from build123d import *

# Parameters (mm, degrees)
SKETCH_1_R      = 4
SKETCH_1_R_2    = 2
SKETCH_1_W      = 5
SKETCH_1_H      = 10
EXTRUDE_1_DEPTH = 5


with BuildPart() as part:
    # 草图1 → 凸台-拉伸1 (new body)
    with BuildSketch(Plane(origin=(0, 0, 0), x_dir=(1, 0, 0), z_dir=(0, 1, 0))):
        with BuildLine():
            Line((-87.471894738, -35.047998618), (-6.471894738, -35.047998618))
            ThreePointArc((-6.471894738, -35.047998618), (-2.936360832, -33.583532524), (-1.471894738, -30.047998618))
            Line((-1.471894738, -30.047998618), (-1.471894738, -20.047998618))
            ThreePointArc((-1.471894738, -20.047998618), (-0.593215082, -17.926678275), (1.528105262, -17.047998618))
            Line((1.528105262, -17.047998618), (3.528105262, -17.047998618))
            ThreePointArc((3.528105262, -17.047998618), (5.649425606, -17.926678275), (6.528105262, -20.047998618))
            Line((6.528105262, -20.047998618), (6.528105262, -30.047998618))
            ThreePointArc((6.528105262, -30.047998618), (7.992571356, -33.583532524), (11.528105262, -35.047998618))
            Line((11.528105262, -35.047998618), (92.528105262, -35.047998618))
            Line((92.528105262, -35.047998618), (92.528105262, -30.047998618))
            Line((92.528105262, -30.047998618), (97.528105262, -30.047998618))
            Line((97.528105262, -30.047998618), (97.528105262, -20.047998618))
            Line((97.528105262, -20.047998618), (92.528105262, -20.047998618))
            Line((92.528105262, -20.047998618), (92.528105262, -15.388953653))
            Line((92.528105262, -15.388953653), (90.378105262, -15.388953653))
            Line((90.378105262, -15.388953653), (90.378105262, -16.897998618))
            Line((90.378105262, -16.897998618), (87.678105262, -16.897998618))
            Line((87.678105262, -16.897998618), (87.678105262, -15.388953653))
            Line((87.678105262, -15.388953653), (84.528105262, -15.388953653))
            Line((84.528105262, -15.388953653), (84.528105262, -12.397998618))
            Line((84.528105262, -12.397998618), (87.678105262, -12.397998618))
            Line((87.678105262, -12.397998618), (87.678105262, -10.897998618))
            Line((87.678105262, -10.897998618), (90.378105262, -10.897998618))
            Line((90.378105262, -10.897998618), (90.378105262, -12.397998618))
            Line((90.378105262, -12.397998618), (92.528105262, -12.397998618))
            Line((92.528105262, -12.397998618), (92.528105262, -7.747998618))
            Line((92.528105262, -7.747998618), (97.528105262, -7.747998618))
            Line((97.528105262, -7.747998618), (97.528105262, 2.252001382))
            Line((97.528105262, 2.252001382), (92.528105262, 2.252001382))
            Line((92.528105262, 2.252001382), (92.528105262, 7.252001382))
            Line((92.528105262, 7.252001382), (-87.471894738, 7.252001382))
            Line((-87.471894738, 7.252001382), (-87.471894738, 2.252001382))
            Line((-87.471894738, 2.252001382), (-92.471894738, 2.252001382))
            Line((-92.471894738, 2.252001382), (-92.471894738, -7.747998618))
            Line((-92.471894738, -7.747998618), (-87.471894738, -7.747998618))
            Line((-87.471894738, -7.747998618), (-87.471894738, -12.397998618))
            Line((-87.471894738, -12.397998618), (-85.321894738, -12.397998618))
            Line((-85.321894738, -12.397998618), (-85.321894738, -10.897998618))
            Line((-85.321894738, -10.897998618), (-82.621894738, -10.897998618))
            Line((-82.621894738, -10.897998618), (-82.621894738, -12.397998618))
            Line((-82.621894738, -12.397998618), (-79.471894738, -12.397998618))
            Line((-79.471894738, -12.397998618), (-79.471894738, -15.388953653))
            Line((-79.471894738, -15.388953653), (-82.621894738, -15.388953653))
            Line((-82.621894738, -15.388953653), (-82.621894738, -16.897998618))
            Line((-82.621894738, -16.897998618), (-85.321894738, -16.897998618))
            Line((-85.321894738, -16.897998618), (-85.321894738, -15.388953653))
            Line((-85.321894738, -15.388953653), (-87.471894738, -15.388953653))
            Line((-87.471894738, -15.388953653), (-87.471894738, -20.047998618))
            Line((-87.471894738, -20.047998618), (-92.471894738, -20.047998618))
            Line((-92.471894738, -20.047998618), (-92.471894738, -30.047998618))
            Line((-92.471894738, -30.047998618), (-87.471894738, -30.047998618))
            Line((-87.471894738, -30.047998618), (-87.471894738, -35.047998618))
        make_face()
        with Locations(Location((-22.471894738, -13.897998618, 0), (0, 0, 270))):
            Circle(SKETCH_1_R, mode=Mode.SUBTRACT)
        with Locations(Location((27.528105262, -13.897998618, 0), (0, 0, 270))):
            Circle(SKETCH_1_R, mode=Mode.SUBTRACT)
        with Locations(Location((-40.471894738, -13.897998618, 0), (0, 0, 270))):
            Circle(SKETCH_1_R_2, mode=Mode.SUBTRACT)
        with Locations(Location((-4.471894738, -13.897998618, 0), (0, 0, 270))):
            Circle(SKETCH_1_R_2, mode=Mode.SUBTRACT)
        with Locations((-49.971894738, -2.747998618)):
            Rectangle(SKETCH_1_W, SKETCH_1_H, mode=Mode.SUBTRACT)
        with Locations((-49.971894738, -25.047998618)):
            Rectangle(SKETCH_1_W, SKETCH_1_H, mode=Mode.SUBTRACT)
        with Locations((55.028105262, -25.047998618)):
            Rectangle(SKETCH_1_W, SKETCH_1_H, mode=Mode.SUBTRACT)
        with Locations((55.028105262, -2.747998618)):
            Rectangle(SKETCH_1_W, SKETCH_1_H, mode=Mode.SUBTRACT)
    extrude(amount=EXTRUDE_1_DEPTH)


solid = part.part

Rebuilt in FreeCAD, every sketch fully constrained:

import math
import FreeCAD as App
import Part
import Sketcher

V = App.Vector
Q = App.Units.Quantity


def add_polygon(sketch, points):
    """Adds a closed chain of lines whose ends are joined by coincident constraints."""
    first, n = sketch.GeometryCount, len(points)
    for a, b in zip(points, points[1:] + points[:1]):
        sketch.addGeometry(Part.LineSegment(App.Vector(*a, 0), App.Vector(*b, 0)), False)
    for i in range(n):
        sketch.addConstraint(Sketcher.Constraint("Coincident", first + i, 2, first + (i + 1) % n, 1))

doc = App.newDocument("Part")
params = doc.addObject("Spreadsheet::Sheet", "Params")
for row, (alias, value) in enumerate([
    ("sketch1_diameter", "4 mm"),
    ("sketch1_diameter2", "8 mm"),
    ("sketch1_radius", "5 mm"),
    ("sketch1_radius2", "3 mm"),
    ("sketch1_width", "81 mm"),
    ("pad1_length", "5 mm"),
], start=1):
    params.set(f"A{row}", alias)
    params.set(f"B{row}", "=" + value)
    params.setAlias(f"B{row}", alias)

body = doc.addObject("PartDesign::Body", "Body")

# Sketch on XZ plane
sketch1 = body.newObject("Sketcher::SketchObject", "Sketch")
sketch1.AttachmentSupport = (doc.getObject("XZ_Plane"), [""])
sketch1.MapMode = "FlatFace"
sketch1.addGeometry(Part.LineSegment(V(-87.5, 35, 0), V(-6.5, 35, 0)), False)  # 0
sketch1.addGeometry(Part.ArcOfCircle(Part.Circle(V(-6.5, 30, 0), V(0, 0, 1), 5), math.radians(0), math.radians(90)), False)  # 1
sketch1.addGeometry(Part.LineSegment(V(-1.5, 30, 0), V(-1.5, 20, 0)), False)  # 2
sketch1.addGeometry(Part.ArcOfCircle(Part.Circle(V(1.5, 20, 0), V(0, 0, 1), 3), math.radians(180), math.radians(270)), False)  # 3
sketch1.addGeometry(Part.LineSegment(V(1.5, 17, 0), V(3.5, 17, 0)), False)  # 4
sketch1.addGeometry(Part.ArcOfCircle(Part.Circle(V(3.5, 20, 0), V(0, 0, 1), 3), math.radians(-90), math.radians(0)), False)  # 5
sketch1.addGeometry(Part.LineSegment(V(6.5, 20, 0), V(6.5, 30, 0)), False)  # 6
sketch1.addGeometry(Part.ArcOfCircle(Part.Circle(V(11.5, 30, 0), V(0, 0, 1), 5), math.radians(90), math.radians(180)), False)  # 7
sketch1.addGeometry(Part.LineSegment(V(11.5, 35, 0), V(92.5, 35, 0)), False)  # 8
sketch1.addGeometry(Part.LineSegment(V(92.5, 35, 0), V(92.5, 30, 0)), False)  # 9
sketch1.addGeometry(Part.LineSegment(V(92.5, 30, 0), V(97.5, 30, 0)), False)  # 10
sketch1.addGeometry(Part.LineSegment(V(97.5, 30, 0), V(97.5, 20, 0)), False)  # 11
sketch1.addGeometry(Part.LineSegment(V(97.5, 20, 0), V(92.5, 20, 0)), False)  # 12
sketch1.addGeometry(Part.LineSegment(V(92.5, 20, 0), V(92.5, 15.4, 0)), False)  # 13
sketch1.addGeometry(Part.LineSegment(V(92.5, 15.4, 0), V(90.4, 15.4, 0)), False)  # 14
sketch1.addGeometry(Part.LineSegment(V(90.4, 15.4, 0), V(90.4, 16.9, 0)), False)  # 15
sketch1.addGeometry(Part.LineSegment(V(90.4, 16.9, 0), V(87.7, 16.9, 0)), False)  # 16
sketch1.addGeometry(Part.LineSegment(V(87.7, 16.9, 0), V(87.7, 15.4, 0)), False)  # 17
sketch1.addGeometry(Part.LineSegment(V(87.7, 15.4, 0), V(84.5, 15.4, 0)), False)  # 18
sketch1.addGeometry(Part.LineSegment(V(84.5, 15.4, 0), V(84.5, 12.4, 0)), False)  # 19
sketch1.addGeometry(Part.LineSegment(V(84.5, 12.4, 0), V(87.7, 12.4, 0)), False)  # 20
sketch1.addGeometry(Part.LineSegment(V(87.7, 12.4, 0), V(87.7, 10.9, 0)), False)  # 21
sketch1.addGeometry(Part.LineSegment(V(87.7, 10.9, 0), V(90.4, 10.9, 0)), False)  # 22
sketch1.addGeometry(Part.LineSegment(V(90.4, 10.9, 0), V(90.4, 12.4, 0)), False)  # 23
sketch1.addGeometry(Part.LineSegment(V(90.4, 12.4, 0), V(92.5, 12.4, 0)), False)  # 24
sketch1.addGeometry(Part.LineSegment(V(92.5, 12.4, 0), V(92.5, 7.7, 0)), False)  # 25
sketch1.addGeometry(Part.LineSegment(V(92.5, 7.7, 0), V(97.5, 7.7, 0)), False)  # 26
sketch1.addGeometry(Part.LineSegment(V(97.5, 7.7, 0), V(97.5, -2.3, 0)), False)  # 27
sketch1.addGeometry(Part.LineSegment(V(97.5, -2.3, 0), V(92.5, -2.3, 0)), False)  # 28
sketch1.addGeometry(Part.LineSegment(V(92.5, -2.3, 0), V(92.5, -7.3, 0)), False)  # 29
sketch1.addGeometry(Part.LineSegment(V(92.5, -7.3, 0), V(-87.5, -7.3, 0)), False)  # 30
sketch1.addGeometry(Part.LineSegment(V(-87.5, -7.3, 0), V(-87.5, -2.3, 0)), False)  # 31
sketch1.addGeometry(Part.LineSegment(V(-87.5, -2.3, 0), V(-92.5, -2.3, 0)), False)  # 32
sketch1.addGeometry(Part.LineSegment(V(-92.5, -2.3, 0), V(-92.5, 7.7, 0)), False)  # 33
sketch1.addGeometry(Part.LineSegment(V(-92.5, 7.7, 0), V(-87.5, 7.7, 0)), False)  # 34
sketch1.addGeometry(Part.LineSegment(V(-87.5, 7.7, 0), V(-87.5, 12.4, 0)), False)  # 35
sketch1.addGeometry(Part.LineSegment(V(-87.5, 12.4, 0), V(-85.3, 12.4, 0)), False)  # 36
sketch1.addGeometry(Part.LineSegment(V(-85.3, 12.4, 0), V(-85.3, 10.9, 0)), False)  # 37
sketch1.addGeometry(Part.LineSegment(V(-85.3, 10.9, 0), V(-82.6, 10.9, 0)), False)  # 38
sketch1.addGeometry(Part.LineSegment(V(-82.6, 10.9, 0), V(-82.6, 12.4, 0)), False)  # 39
sketch1.addGeometry(Part.LineSegment(V(-82.6, 12.4, 0), V(-79.5, 12.4, 0)), False)  # 40
sketch1.addGeometry(Part.LineSegment(V(-79.5, 12.4, 0), V(-79.5, 15.4, 0)), False)  # 41
sketch1.addGeometry(Part.LineSegment(V(-79.5, 15.4, 0), V(-82.6, 15.4, 0)), False)  # 42
sketch1.addGeometry(Part.LineSegment(V(-82.6, 15.4, 0), V(-82.6, 16.9, 0)), False)  # 43
sketch1.addGeometry(Part.LineSegment(V(-82.6, 16.9, 0), V(-85.3, 16.9, 0)), False)  # 44
sketch1.addGeometry(Part.LineSegment(V(-85.3, 16.9, 0), V(-85.3, 15.4, 0)), False)  # 45
sketch1.addGeometry(Part.LineSegment(V(-85.3, 15.4, 0), V(-87.5, 15.4, 0)), False)  # 46
sketch1.addGeometry(Part.LineSegment(V(-87.5, 15.4, 0), V(-87.5, 20, 0)), False)  # 47
sketch1.addGeometry(Part.LineSegment(V(-87.5, 20, 0), V(-92.5, 20, 0)), False)  # 48
sketch1.addGeometry(Part.LineSegment(V(-92.5, 20, 0), V(-92.5, 30, 0)), False)  # 49
sketch1.addGeometry(Part.LineSegment(V(-92.5, 30, 0), V(-87.5, 30, 0)), False)  # 50
sketch1.addGeometry(Part.LineSegment(V(-87.5, 30, 0), V(-87.5, 35, 0)), False)  # 51
add_polygon(sketch1, [(-47.5, 30), (-52.5, 30), (-52.5, 20), (-47.5, 20)])  # lines 52-55
add_polygon(sketch1, [(57.5, 30), (52.5, 30), (52.5, 20), (57.5, 20)])  # lines 56-59
sketch1.addGeometry(Part.Circle(V(-40.5, 13.9, 0), V(0, 0, 1), 2), False)  # 60
sketch1.addGeometry(Part.Circle(V(-22.5, 13.9, 0), V(0, 0, 1), 4), False)  # 61
sketch1.addGeometry(Part.Circle(V(-4.5, 13.9, 0), V(0, 0, 1), 2), False)  # 62
add_polygon(sketch1, [(-47.5, 7.7), (-52.5, 7.7), (-52.5, -2.3), (-47.5, -2.3)])  # lines 63-66
sketch1.addGeometry(Part.Circle(V(27.5, 13.9, 0), V(0, 0, 1), 4), False)  # 67
add_polygon(sketch1, [(57.5, 7.7), (52.5, 7.7), (52.5, -2.3), (57.5, -2.3)])  # lines 68-71
sketch1.addConstraint(Sketcher.Constraint("Tangent", 0, 2, 1, 2))
sketch1.addConstraint(Sketcher.Constraint("Tangent", 1, 1, 2, 1))
sketch1.addConstraint(Sketcher.Constraint("Tangent", 2, 2, 3, 1))
sketch1.addConstraint(Sketcher.Constraint("Tangent", 3, 2, 4, 1))
sketch1.addConstraint(Sketcher.Constraint("Tangent", 4, 2, 5, 1))
sketch1.addConstraint(Sketcher.Constraint("Tangent", 5, 2, 6, 1))
sketch1.addConstraint(Sketcher.Constraint("Tangent", 6, 2, 7, 2))
sketch1.addConstraint(Sketcher.Constraint("Tangent", 7, 1, 8, 1))
sketch1.addConstraint(Sketcher.Constraint("Coincident", 8, 2, 9, 1))
sketch1.addConstraint(Sketcher.Constraint("Coincident", 9, 2, 10, 1))
sketch1.addConstraint(Sketcher.Constraint("Coincident", 10, 2, 11, 1))
sketch1.addConstraint(Sketcher.Constraint("Coincident", 11, 2, 12, 1))
sketch1.addConstraint(Sketcher.Constraint("Coincident", 12, 2, 13, 1))
sketch1.addConstraint(Sketcher.Constraint("Coincident", 13, 2, 14, 1))
sketch1.addConstraint(Sketcher.Constraint("Coincident", 14, 2, 15, 1))
sketch1.addConstraint(Sketcher.Constraint("Coincident", 15, 2, 16, 1))
sketch1.addConstraint(Sketcher.Constraint("Coincident", 16, 2, 17, 1))
sketch1.addConstraint(Sketcher.Constraint("Coincident", 17, 2, 18, 1))
sketch1.addConstraint(Sketcher.Constraint("Coincident", 18, 2, 19, 1))
sketch1.addConstraint(Sketcher.Constraint("Coincident", 19, 2, 20, 1))
sketch1.addConstraint(Sketcher.Constraint("Coincident", 20, 2, 21, 1))
sketch1.addConstraint(Sketcher.Constraint("Coincident", 21, 2, 22, 1))
sketch1.addConstraint(Sketcher.Constraint("Coincident", 22, 2, 23, 1))
sketch1.addConstraint(Sketcher.Constraint("Coincident", 23, 2, 24, 1))
sketch1.addConstraint(Sketcher.Constraint("Coincident", 24, 2, 25, 1))
sketch1.addConstraint(Sketcher.Constraint("Coincident", 25, 2, 26, 1))
sketch1.addConstraint(Sketcher.Constraint("Coincident", 26, 2, 27, 1))
sketch1.addConstraint(Sketcher.Constraint("Coincident", 27, 2, 28, 1))
sketch1.addConstraint(Sketcher.Constraint("Coincident", 28, 2, 29, 1))
sketch1.addConstraint(Sketcher.Constraint("Coincident", 29, 2, 30, 1))
sketch1.addConstraint(Sketcher.Constraint("Coincident", 30, 2, 31, 1))
sketch1.addConstraint(Sketcher.Constraint("Coincident", 31, 2, 32, 1))
sketch1.addConstraint(Sketcher.Constraint("Coincident", 32, 2, 33, 1))
sketch1.addConstraint(Sketcher.Constraint("Coincident", 33, 2, 34, 1))
sketch1.addConstraint(Sketcher.Constraint("Coincident", 34, 2, 35, 1))
sketch1.addConstraint(Sketcher.Constraint("Coincident", 35, 2, 36, 1))
sketch1.addConstraint(Sketcher.Constraint("Coincident", 36, 2, 37, 1))
sketch1.addConstraint(Sketcher.Constraint("Coincident", 37, 2, 38, 1))
sketch1.addConstraint(Sketcher.Constraint("Coincident", 38, 2, 39, 1))
sketch1.addConstraint(Sketcher.Constraint("Coincident", 39, 2, 40, 1))
sketch1.addConstraint(Sketcher.Constraint("Coincident", 40, 2, 41, 1))
sketch1.addConstraint(Sketcher.Constraint("Coincident", 41, 2, 42, 1))
sketch1.addConstraint(Sketcher.Constraint("Coincident", 42, 2, 43, 1))
sketch1.addConstraint(Sketcher.Constraint("Coincident", 43, 2, 44, 1))
sketch1.addConstraint(Sketcher.Constraint("Coincident", 44, 2, 45, 1))
sketch1.addConstraint(Sketcher.Constraint("Coincident", 45, 2, 46, 1))
sketch1.addConstraint(Sketcher.Constraint("Coincident", 46, 2, 47, 1))
sketch1.addConstraint(Sketcher.Constraint("Coincident", 47, 2, 48, 1))
sketch1.addConstraint(Sketcher.Constraint("Coincident", 48, 2, 49, 1))
sketch1.addConstraint(Sketcher.Constraint("Coincident", 49, 2, 50, 1))
sketch1.addConstraint(Sketcher.Constraint("Coincident", 50, 2, 51, 1))
sketch1.addConstraint(Sketcher.Constraint("Coincident", 51, 2, 0, 1))
sketch1.addConstraint(Sketcher.Constraint("Horizontal", 0))
sketch1.addConstraint(Sketcher.Constraint("Vertical", 2))
sketch1.addConstraint(Sketcher.Constraint("Horizontal", 4))
sketch1.addConstraint(Sketcher.Constraint("Vertical", 6))
sketch1.addConstraint(Sketcher.Constraint("Horizontal", 8))
sketch1.addConstraint(Sketcher.Constraint("Vertical", 9))
sketch1.addConstraint(Sketcher.Constraint("Horizontal", 10))
sketch1.addConstraint(Sketcher.Constraint("Vertical", 11))
sketch1.addConstraint(Sketcher.Constraint("Horizontal", 12))
sketch1.addConstraint(Sketcher.Constraint("Vertical", 13))
sketch1.addConstraint(Sketcher.Constraint("Horizontal", 14))
sketch1.addConstraint(Sketcher.Constraint("Vertical", 15))
sketch1.addConstraint(Sketcher.Constraint("Horizontal", 16))
sketch1.addConstraint(Sketcher.Constraint("Vertical", 17))
sketch1.addConstraint(Sketcher.Constraint("Horizontal", 18))
sketch1.addConstraint(Sketcher.Constraint("Vertical", 19))
sketch1.addConstraint(Sketcher.Constraint("Horizontal", 20))
sketch1.addConstraint(Sketcher.Constraint("Vertical", 21))
sketch1.addConstraint(Sketcher.Constraint("Horizontal", 22))
sketch1.addConstraint(Sketcher.Constraint("Vertical", 23))
sketch1.addConstraint(Sketcher.Constraint("Horizontal", 24))
sketch1.addConstraint(Sketcher.Constraint("Vertical", 25))
sketch1.addConstraint(Sketcher.Constraint("Horizontal", 26))
sketch1.addConstraint(Sketcher.Constraint("Vertical", 27))
sketch1.addConstraint(Sketcher.Constraint("Horizontal", 28))
sketch1.addConstraint(Sketcher.Constraint("Vertical", 29))
sketch1.addConstraint(Sketcher.Constraint("Horizontal", 30))
sketch1.addConstraint(Sketcher.Constraint("Vertical", 31))
sketch1.addConstraint(Sketcher.Constraint("Horizontal", 32))
sketch1.addConstraint(Sketcher.Constraint("Vertical", 33))
sketch1.addConstraint(Sketcher.Constraint("Horizontal", 34))
sketch1.addConstraint(Sketcher.Constraint("Vertical", 35))
sketch1.addConstraint(Sketcher.Constraint("Horizontal", 36))
sketch1.addConstraint(Sketcher.Constraint("Vertical", 37))
sketch1.addConstraint(Sketcher.Constraint("Horizontal", 38))
sketch1.addConstraint(Sketcher.Constraint("Vertical", 39))
sketch1.addConstraint(Sketcher.Constraint("Horizontal", 40))
sketch1.addConstraint(Sketcher.Constraint("Vertical", 41))
sketch1.addConstraint(Sketcher.Constraint("Horizontal", 42))
sketch1.addConstraint(Sketcher.Constraint("Vertical", 43))
sketch1.addConstraint(Sketcher.Constraint("Horizontal", 44))
sketch1.addConstraint(Sketcher.Constraint("Vertical", 45))
sketch1.addConstraint(Sketcher.Constraint("Horizontal", 46))
sketch1.addConstraint(Sketcher.Constraint("Vertical", 47))
sketch1.addConstraint(Sketcher.Constraint("Horizontal", 48))
sketch1.addConstraint(Sketcher.Constraint("Vertical", 49))
sketch1.addConstraint(Sketcher.Constraint("Horizontal", 50))
sketch1.addConstraint(Sketcher.Constraint("Vertical", 51))
sketch1.addConstraint(Sketcher.Constraint("Horizontal", 52))
sketch1.addConstraint(Sketcher.Constraint("Vertical", 53))
sketch1.addConstraint(Sketcher.Constraint("Horizontal", 54))
sketch1.addConstraint(Sketcher.Constraint("Vertical", 55))
sketch1.addConstraint(Sketcher.Constraint("Horizontal", 56))
sketch1.addConstraint(Sketcher.Constraint("Vertical", 57))
sketch1.addConstraint(Sketcher.Constraint("Horizontal", 58))
sketch1.addConstraint(Sketcher.Constraint("Vertical", 59))
sketch1.addConstraint(Sketcher.Constraint("Horizontal", 63))
sketch1.addConstraint(Sketcher.Constraint("Vertical", 64))
sketch1.addConstraint(Sketcher.Constraint("Horizontal", 65))
sketch1.addConstraint(Sketcher.Constraint("Vertical", 66))
sketch1.addConstraint(Sketcher.Constraint("Horizontal", 68))
sketch1.addConstraint(Sketcher.Constraint("Vertical", 69))
sketch1.addConstraint(Sketcher.Constraint("Horizontal", 70))
sketch1.addConstraint(Sketcher.Constraint("Vertical", 71))
sketch1.addConstraint(Sketcher.Constraint("Equal", 3, 5))
sketch1.addConstraint(Sketcher.Constraint("Equal", 1, 7))
sketch1.addConstraint(Sketcher.Constraint("Equal", 60, 62))
sketch1.addConstraint(Sketcher.Constraint("Equal", 61, 67))
sketch1.addConstraint(Sketcher.Constraint("Horizontal", 1, 3, 7, 3))
sketch1.addConstraint(Sketcher.Constraint("Horizontal", 60, 3, 61, 3))
sketch1.addConstraint(Sketcher.Constraint("Horizontal", 61, 3, 62, 3))
sketch1.addConstraint(Sketcher.Constraint("Horizontal", 62, 3, 67, 3))
sketch1.addConstraint(Sketcher.Constraint("Horizontal", 6, 2, 9, 2))
sketch1.addConstraint(Sketcher.Constraint("Horizontal", 5, 2, 11, 2))
sketch1.addConstraint(Sketcher.Constraint("Horizontal", 14, 2, 17, 2))
sketch1.addConstraint(Sketcher.Constraint("Horizontal", 20, 2, 23, 2))
sketch1.addConstraint(Sketcher.Constraint("Horizontal", 28, 2, 31, 2))
sketch1.addConstraint(Sketcher.Constraint("Horizontal", 26, 2, 33, 2))
sketch1.addConstraint(Sketcher.Constraint("Horizontal", 24, 2, 35, 2))
sketch1.addConstraint(Sketcher.Constraint("Horizontal", 22, 2, 37, 2))
sketch1.addConstraint(Sketcher.Constraint("Horizontal", 36, 2, 39, 2))
sketch1.addConstraint(Sketcher.Constraint("Horizontal", 18, 2, 41, 2))
sketch1.addConstraint(Sketcher.Constraint("Horizontal", 16, 2, 43, 2))
sketch1.addConstraint(Sketcher.Constraint("Horizontal", 42, 2, 45, 2))
sketch1.addConstraint(Sketcher.Constraint("Horizontal", 12, 2, 47, 2))
sketch1.addConstraint(Sketcher.Constraint("Horizontal", 10, 2, 49, 2))
sketch1.addConstraint(Sketcher.Constraint("Horizontal", 50, 2, 52, 2))
sketch1.addConstraint(Sketcher.Constraint("Horizontal", 48, 2, 53, 2))
sketch1.addConstraint(Sketcher.Constraint("Horizontal", 55, 2, 56, 2))
sketch1.addConstraint(Sketcher.Constraint("Horizontal", 54, 2, 57, 2))
sketch1.addConstraint(Sketcher.Constraint("Horizontal", 34, 2, 63, 2))
sketch1.addConstraint(Sketcher.Constraint("Horizontal", 32, 2, 64, 2))
sketch1.addConstraint(Sketcher.Constraint("Horizontal", 66, 2, 68, 2))
sketch1.addConstraint(Sketcher.Constraint("Horizontal", 65, 2, 69, 2))
sketch1.addConstraint(Sketcher.Constraint("Vertical", 9, 2, 12, 2))
sketch1.addConstraint(Sketcher.Constraint("Vertical", 17, 2, 20, 2))
sketch1.addConstraint(Sketcher.Constraint("Vertical", 15, 2, 22, 2))
sketch1.addConstraint(Sketcher.Constraint("Vertical", 13, 2, 24, 2))
sketch1.addConstraint(Sketcher.Constraint("Vertical", 11, 2, 26, 2))
sketch1.addConstraint(Sketcher.Constraint("Vertical", 25, 2, 28, 2))
sketch1.addConstraint(Sketcher.Constraint("Vertical", 31, 2, 34, 2))
sketch1.addConstraint(Sketcher.Constraint("Vertical", 39, 2, 42, 2))
sketch1.addConstraint(Sketcher.Constraint("Vertical", 37, 2, 44, 2))
sketch1.addConstraint(Sketcher.Constraint("Vertical", 35, 2, 46, 2))
sketch1.addConstraint(Sketcher.Constraint("Vertical", 33, 2, 48, 2))
sketch1.addConstraint(Sketcher.Constraint("Vertical", 47, 2, 50, 2))
sketch1.addConstraint(Sketcher.Constraint("Vertical", 53, 2, 63, 2))
sketch1.addConstraint(Sketcher.Constraint("Vertical", 55, 2, 65, 2))
sketch1.addConstraint(Sketcher.Constraint("Vertical", 57, 2, 68, 2))
sketch1.addConstraint(Sketcher.Constraint("Vertical", 59, 2, 70, 2))
sketch1.addConstraint(Sketcher.Constraint("Equal", 0, 8))
sketch1.addConstraint(Sketcher.Constraint("Equal", 28, 32))
sketch1.addConstraint(Sketcher.Constraint("Equal", 24, 36))
sketch1.addConstraint(Sketcher.Constraint("Equal", 22, 38))
sketch1.addConstraint(Sketcher.Constraint("Equal", 20, 40))
sketch1.addConstraint(Sketcher.Constraint("Equal", 50, 52))
sketch1.addConstraint(Sketcher.Constraint("Equal", 54, 56))
sketch1.addConstraint(Sketcher.Constraint("Equal", 70, 9))
sketch1.addConstraint(Sketcher.Constraint("Equal", 11, 27))
sketch1.addConstraint(Sketcher.Constraint("Equal", 9, 29))
sketch1.addConstraint(Sketcher.Constraint("Diameter", 60, Q("4 mm")))
sketch1.addConstraint(Sketcher.Constraint("Diameter", 61, Q("8 mm")))
sketch1.addConstraint(Sketcher.Constraint("Radius", 1, Q("5 mm")))
sketch1.addConstraint(Sketcher.Constraint("Radius", 3, Q("3 mm")))
sketch1.addConstraint(Sketcher.Constraint("DistanceX", 0, 1, 0, 2, Q("81 mm")))
sketch1.addConstraint(Sketcher.Constraint("DistanceX", 4, 1, 4, 2, Q("2 mm")))
sketch1.addConstraint(Sketcher.Constraint("DistanceY", 2, 2, 2, 1, Q("10 mm")))
sketch1.addConstraint(Sketcher.Constraint("DistanceX", 16, 2, 16, 1, Q("2.7 mm")))
sketch1.addConstraint(Sketcher.Constraint("DistanceY", 21, 2, 21, 1, Q("1.5 mm")))
sketch1.addConstraint(Sketcher.Constraint("DistanceX", 14, 2, 14, 1, Q("2.15 mm")))
sketch1.addConstraint(Sketcher.Constraint("DistanceX", 18, 2, 18, 1, Q("3.15 mm")))
sketch1.addConstraint(Sketcher.Constraint("DistanceY", 25, 2, 25, 1, Q("4.65 mm")))
sketch1.addConstraint(Sketcher.Constraint("DistanceY", -1, 1, 1, 3, Q("30.047999 mm")))
sketch1.addConstraint(Sketcher.Constraint("DistanceY", -1, 1, 60, 3, Q("13.897999 mm")))
sketch1.addConstraint(Sketcher.Constraint("DistanceY", -1, 1, 15, 2, Q("16.897999 mm")))
sketch1.addConstraint(Sketcher.Constraint("DistanceY", -1, 1, 19, 2, Q("12.397999 mm")))
sketch1.addConstraint(Sketcher.Constraint("DistanceY", 13, 2, 13, 1, Q("4.659045 mm")))
sketch1.addConstraint(Sketcher.Constraint("DistanceX", 1, 3, -1, 1, Q("6.471895 mm")))
sketch1.addConstraint(Sketcher.Constraint("DistanceX", 60, 3, -1, 1, Q("40.471895 mm")))
sketch1.addConstraint(Sketcher.Constraint("DistanceX", 61, 3, -1, 1, Q("22.471895 mm")))
sketch1.addConstraint(Sketcher.Constraint("DistanceX", 62, 3, -1, 1, Q("4.471895 mm")))
sketch1.addConstraint(Sketcher.Constraint("DistanceX", -1, 1, 67, 3, Q("27.528105 mm")))
sketch1.addConstraint(Sketcher.Constraint("DistanceX", 52, 2, -1, 1, Q("52.471895 mm")))
sketch1.addConstraint(Sketcher.Constraint("DistanceX", -1, 1, 56, 2, Q("52.528105 mm")))
sketch1.setExpression("Constraints[188]", "Params.sketch1_diameter")
sketch1.setExpression("Constraints[189]", "Params.sketch1_diameter2")
sketch1.setExpression("Constraints[190]", "Params.sketch1_radius")
sketch1.setExpression("Constraints[191]", "Params.sketch1_radius2")
sketch1.setExpression("Constraints[192]", "Params.sketch1_width")
pad1 = body.newObject("PartDesign::Pad", "Pad")
pad1.Profile = sketch1
pad1.setExpression("Length", "Params.pad1_length")
pad1.Reversed = True

doc.recompute()
